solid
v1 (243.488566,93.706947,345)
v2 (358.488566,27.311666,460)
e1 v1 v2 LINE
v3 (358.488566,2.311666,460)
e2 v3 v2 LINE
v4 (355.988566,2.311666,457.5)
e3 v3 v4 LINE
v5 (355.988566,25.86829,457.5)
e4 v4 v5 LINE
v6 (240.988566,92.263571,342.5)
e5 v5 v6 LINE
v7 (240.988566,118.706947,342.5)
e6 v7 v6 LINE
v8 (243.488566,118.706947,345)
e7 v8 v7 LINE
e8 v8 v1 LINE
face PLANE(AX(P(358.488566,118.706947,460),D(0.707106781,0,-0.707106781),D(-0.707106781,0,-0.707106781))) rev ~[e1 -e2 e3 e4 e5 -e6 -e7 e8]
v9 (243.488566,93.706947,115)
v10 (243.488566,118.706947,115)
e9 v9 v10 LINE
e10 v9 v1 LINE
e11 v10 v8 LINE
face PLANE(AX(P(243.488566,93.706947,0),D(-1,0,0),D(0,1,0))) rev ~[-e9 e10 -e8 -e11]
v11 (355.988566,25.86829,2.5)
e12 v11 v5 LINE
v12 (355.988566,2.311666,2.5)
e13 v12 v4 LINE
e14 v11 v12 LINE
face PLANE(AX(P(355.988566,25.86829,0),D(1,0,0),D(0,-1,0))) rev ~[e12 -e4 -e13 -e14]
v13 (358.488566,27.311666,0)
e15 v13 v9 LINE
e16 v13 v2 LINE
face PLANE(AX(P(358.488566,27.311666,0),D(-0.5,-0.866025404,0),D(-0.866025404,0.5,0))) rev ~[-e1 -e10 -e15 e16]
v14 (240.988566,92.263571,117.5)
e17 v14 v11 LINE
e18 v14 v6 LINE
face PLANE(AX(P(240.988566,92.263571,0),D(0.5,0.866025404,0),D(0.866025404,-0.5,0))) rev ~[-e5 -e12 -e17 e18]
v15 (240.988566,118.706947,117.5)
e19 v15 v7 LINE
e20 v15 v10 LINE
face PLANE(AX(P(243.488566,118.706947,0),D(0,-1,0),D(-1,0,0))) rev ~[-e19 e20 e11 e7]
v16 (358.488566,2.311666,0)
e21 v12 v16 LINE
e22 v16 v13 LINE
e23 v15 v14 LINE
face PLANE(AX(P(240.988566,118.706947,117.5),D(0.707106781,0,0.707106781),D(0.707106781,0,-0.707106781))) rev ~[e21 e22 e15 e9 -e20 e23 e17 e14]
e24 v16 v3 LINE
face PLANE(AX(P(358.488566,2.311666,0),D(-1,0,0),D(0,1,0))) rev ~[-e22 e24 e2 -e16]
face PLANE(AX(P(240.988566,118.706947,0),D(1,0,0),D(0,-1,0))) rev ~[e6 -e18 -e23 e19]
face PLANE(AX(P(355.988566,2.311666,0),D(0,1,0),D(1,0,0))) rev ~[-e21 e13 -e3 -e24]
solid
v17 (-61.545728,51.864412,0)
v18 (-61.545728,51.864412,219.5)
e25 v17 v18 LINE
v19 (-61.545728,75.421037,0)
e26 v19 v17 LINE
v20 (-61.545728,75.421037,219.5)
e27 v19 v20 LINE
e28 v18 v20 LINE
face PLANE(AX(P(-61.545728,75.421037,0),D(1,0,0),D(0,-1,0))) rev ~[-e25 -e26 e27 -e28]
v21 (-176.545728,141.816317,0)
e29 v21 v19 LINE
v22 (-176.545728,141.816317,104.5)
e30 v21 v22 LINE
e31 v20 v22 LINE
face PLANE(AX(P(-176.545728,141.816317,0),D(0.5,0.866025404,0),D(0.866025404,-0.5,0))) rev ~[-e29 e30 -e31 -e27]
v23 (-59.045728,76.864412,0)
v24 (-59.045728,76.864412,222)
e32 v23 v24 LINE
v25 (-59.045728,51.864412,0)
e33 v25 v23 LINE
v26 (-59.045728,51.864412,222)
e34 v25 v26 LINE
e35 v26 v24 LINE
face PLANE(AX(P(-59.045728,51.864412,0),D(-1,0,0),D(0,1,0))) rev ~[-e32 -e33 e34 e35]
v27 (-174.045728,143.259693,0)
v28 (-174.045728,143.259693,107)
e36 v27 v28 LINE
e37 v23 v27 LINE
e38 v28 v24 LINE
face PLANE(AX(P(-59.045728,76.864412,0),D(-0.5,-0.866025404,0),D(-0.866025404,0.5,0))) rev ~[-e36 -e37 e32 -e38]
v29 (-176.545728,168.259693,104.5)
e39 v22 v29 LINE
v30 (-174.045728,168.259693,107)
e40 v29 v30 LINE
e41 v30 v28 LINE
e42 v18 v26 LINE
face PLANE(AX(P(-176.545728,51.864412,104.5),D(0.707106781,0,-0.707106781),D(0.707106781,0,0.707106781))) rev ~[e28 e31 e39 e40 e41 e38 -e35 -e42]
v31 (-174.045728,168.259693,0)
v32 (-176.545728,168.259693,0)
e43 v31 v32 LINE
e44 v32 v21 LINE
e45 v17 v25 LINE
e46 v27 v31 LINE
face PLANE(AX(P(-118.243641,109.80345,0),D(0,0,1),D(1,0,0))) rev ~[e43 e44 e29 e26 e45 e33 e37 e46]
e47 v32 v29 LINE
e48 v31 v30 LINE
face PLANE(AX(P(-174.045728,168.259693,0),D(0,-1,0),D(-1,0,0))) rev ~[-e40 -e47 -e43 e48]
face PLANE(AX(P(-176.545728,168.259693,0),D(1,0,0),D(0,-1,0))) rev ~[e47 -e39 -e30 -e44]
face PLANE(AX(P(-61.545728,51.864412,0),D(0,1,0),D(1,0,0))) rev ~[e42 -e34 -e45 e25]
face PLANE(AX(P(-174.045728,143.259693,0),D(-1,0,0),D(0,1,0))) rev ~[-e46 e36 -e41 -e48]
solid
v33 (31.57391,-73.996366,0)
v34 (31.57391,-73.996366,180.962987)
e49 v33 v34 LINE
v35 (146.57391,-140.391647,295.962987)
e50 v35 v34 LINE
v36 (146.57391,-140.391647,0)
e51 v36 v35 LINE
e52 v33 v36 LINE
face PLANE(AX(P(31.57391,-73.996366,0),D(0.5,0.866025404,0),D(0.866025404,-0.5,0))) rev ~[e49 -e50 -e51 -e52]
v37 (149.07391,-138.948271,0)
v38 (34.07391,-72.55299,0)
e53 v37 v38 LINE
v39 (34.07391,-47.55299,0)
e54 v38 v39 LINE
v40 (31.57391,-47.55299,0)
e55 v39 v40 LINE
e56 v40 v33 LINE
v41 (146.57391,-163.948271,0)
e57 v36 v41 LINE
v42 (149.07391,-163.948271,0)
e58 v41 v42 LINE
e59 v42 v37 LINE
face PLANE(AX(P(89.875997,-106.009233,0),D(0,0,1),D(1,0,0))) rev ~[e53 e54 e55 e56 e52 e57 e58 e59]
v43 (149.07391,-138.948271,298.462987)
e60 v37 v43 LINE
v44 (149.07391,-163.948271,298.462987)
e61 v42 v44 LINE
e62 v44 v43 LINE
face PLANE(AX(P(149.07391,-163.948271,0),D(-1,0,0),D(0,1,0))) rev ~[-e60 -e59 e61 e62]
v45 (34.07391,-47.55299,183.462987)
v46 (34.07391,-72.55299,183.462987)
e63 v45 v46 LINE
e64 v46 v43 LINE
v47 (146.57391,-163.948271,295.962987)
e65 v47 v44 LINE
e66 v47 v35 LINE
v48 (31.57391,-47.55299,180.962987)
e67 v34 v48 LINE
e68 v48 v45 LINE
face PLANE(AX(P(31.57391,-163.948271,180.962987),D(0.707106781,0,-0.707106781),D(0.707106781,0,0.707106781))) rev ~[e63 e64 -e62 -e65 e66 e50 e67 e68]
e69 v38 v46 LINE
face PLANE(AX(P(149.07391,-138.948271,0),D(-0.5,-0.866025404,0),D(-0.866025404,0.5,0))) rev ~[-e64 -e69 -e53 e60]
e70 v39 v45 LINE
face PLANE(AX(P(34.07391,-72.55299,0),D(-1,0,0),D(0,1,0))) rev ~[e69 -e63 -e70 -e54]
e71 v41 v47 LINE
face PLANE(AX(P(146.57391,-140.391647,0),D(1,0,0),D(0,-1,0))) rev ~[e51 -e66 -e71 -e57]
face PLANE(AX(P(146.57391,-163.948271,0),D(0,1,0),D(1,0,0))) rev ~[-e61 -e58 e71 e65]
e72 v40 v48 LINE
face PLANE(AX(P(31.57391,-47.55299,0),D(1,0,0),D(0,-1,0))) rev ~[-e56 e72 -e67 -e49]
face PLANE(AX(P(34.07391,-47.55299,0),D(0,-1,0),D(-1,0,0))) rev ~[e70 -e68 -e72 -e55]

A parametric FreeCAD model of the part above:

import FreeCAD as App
import Part
import Sketcher

V = App.Vector
Q = App.Units.Quantity


def add_polygon(sketch, points):
    """Adds a closed chain of lines whose ends are joined by coincident constraints."""
    first, n = sketch.GeometryCount, len(points)
    for a, b in zip(points, points[1:] + points[:1]):
        sketch.addGeometry(Part.LineSegment(App.Vector(*a, 0), App.Vector(*b, 0)), False)
    for i in range(n):
        sketch.addConstraint(Sketcher.Constraint("Coincident", first + i, 2, first + (i + 1) % n, 1))

doc = App.newDocument("Part")
body = doc.addObject("PartDesign::Body", "Body")

sketch1 = body.newObject("Sketcher::SketchObject", "Sketch")
sketch1.AttachmentSupport = (doc.getObject("XY_Plane"), [""])
sketch1.MapMode = "FlatFace"
add_polygon(sketch1, [(-174, 143.3), (-174, 168.3), (-176.5, 168.3), (-176.5, 141.8), (-61.5, 75.4), (-61.5, 51.9), (-59, 51.9), (-59, 76.9)])
sketch1.addConstraint(Sketcher.Constraint("Vertical", 0))
sketch1.addConstraint(Sketcher.Constraint("Horizontal", 1))
sketch1.addConstraint(Sketcher.Constraint("Vertical", 2))
sketch1.addConstraint(Sketcher.Constraint("Vertical", 4))
sketch1.addConstraint(Sketcher.Constraint("Horizontal", 5))
sketch1.addConstraint(Sketcher.Constraint("Vertical", 6))
sketch1.addConstraint(Sketcher.Constraint("Parallel", 3, 7))
sketch1.addConstraint(Sketcher.Constraint("Equal", 1, 5))
sketch1.addConstraint(Sketcher.Constraint("Equal", 0, 6))
sketch1.addConstraint(Sketcher.Constraint("DistanceY", 0, 1, 0, 2, 25.0))
sketch1.addConstraint(Sketcher.Constraint("Angle", 3, Q("-30 deg")))
sketch1.addConstraint(Sketcher.Constraint("DistanceX", 1, 2, 1, 1, 2.5))
sketch1.addConstraint(Sketcher.Constraint("DistanceX", 2, 2, 3, 2, 115.0))
sketch1.addConstraint(Sketcher.Constraint("DistanceY", 2, 2, 2, 1, 26.443376))
sketch1.addConstraint(Sketcher.Constraint("DistanceX", 0, 2, -1, 1, 174.045728))
sketch1.addConstraint(Sketcher.Constraint("DistanceY", -1, 1, 0, 2, 168.259693))
pad1 = body.newObject("PartDesign::Pad", "Pad")
pad1.Profile = sketch1
pad1.Length = 222

sketch2 = body.newObject("Sketcher::SketchObject", "Sketch001")
sketch2.AttachmentSupport = (doc.getObject("XZ_Plane"), [""])
sketch2.MapMode = "FlatFace"
sketch2.AttachmentOffset = App.Placement(V(0, 0, -51.864412), App.Rotation())
add_polygon(sketch2, [(-177, 222), (-177, 104), (-59, 222)])
sketch2.addConstraint(Sketcher.Constraint("Vertical", 0))
sketch2.addConstraint(Sketcher.Constraint("Horizontal", 2))
sketch2.addConstraint(Sketcher.Constraint("Equal", 2, 0))
sketch2.addConstraint(Sketcher.Constraint("DistanceX", 2, 2, 2, 1, 117.5))
sketch2.addConstraint(Sketcher.Constraint("DistanceY", -1, 1, 1, 2, 222.0))
sketch2.addConstraint(Sketcher.Constraint("DistanceX", 0, 2, -1, 1, 176.545728))
pocket1 = body.newObject("PartDesign::Pocket", "Pocket")
pocket1.Profile = sketch2
pocket1.Type = "ThroughAll"
body2 = doc.addObject("PartDesign::Body", "Body001")

sketch3 = body2.newObject("Sketcher::SketchObject", "Sketch002")
sketch3.AttachmentSupport = (doc.getObject("XY_Plane001"), [""])
sketch3.MapMode = "FlatFace"
add_polygon(sketch3, [(34.1, -72.6), (34.1, -47.6), (31.6, -47.6), (31.6, -74), (146.6, -140.4), (146.6, -163.9), (149.1, -163.9), (149.1, -138.9)])
sketch3.addConstraint(Sketcher.Constraint("Vertical", 0))
sketch3.addConstraint(Sketcher.Constraint("Horizontal", 1))
sketch3.addConstraint(Sketcher.Constraint("Vertical", 2))
sketch3.addConstraint(Sketcher.Constraint("Vertical", 4))
sketch3.addConstraint(Sketcher.Constraint("Horizontal", 5))
sketch3.addConstraint(Sketcher.Constraint("Vertical", 6))
sketch3.addConstraint(Sketcher.Constraint("Parallel", 3, 7))
sketch3.addConstraint(Sketcher.Constraint("Equal", 1, 5))
sketch3.addConstraint(Sketcher.Constraint("Equal", 0, 6))
sketch3.addConstraint(Sketcher.Constraint("DistanceY", 0, 1, 0, 2, 25.0))
sketch3.addConstraint(Sketcher.Constraint("Angle", 3, Q("-30 deg")))
sketch3.addConstraint(Sketcher.Constraint("DistanceX", 1, 2, 1, 1, 2.5))
sketch3.addConstraint(Sketcher.Constraint("DistanceX", 2, 2, 3, 2, 115.0))
sketch3.addConstraint(Sketcher.Constraint("DistanceY", 2, 2, 2, 1, 26.443376))
sketch3.addConstraint(Sketcher.Constraint("DistanceX", -1, 1, 0, 2, 34.07391))
sketch3.addConstraint(Sketcher.Constraint("DistanceY", 0, 2, -1, 1, 47.55299))
pad2 = body2.newObject("PartDesign::Pad", "Pad001")
pad2.Profile = sketch3
pad2.Length = 298.462987

sketch4 = body2.newObject("Sketcher::SketchObject", "Sketch003")
sketch4.AttachmentSupport = (doc.getObject("XZ_Plane001"), [""])
sketch4.MapMode = "FlatFace"
sketch4.AttachmentOffset = App.Placement(V(0, 0, 163.948271), App.Rotation())
add_polygon(sketch4, [(149, 298), (32, 298), (32, 181)])
sketch4.addConstraint(Sketcher.Constraint("Horizontal", 0))
sketch4.addConstraint(Sketcher.Constraint("Vertical", 1))
sketch4.addConstraint(Sketcher.Constraint("Equal", 0, 1))
sketch4.addConstraint(Sketcher.Constraint("DistanceX", 0, 2, 0, 1, 117.5))
sketch4.addConstraint(Sketcher.Constraint("DistanceX", -1, 1, 0, 2, 31.57391))
sketch4.addConstraint(Sketcher.Constraint("DistanceY", -1, 1, 0, 2, 298.462987))
pocket2 = body2.newObject("PartDesign::Pocket", "Pocket001")
pocket2.Profile = sketch4
pocket2.Type = "ThroughAll"
body3 = doc.addObject("PartDesign::Body", "Body002")

sketch5 = body3.newObject("Sketcher::SketchObject", "Sketch004")
sketch5.AttachmentSupport = (doc.getObject("XY_Plane002"), [""])
sketch5.MapMode = "FlatFace"
add_polygon(sketch5, [(243.5, 93.7), (243.5, 118.7), (241, 118.7), (241, 92.3), (356, 25.9), (356, 2.3), (358.5, 2.3), (358.5, 27.3)])
sketch5.addConstraint(Sketcher.Constraint("Vertical", 0))
sketch5.addConstraint(Sketcher.Constraint("Horizontal", 1))
sketch5.addConstraint(Sketcher.Constraint("Vertical", 2))
sketch5.addConstraint(Sketcher.Constraint("Vertical", 4))
sketch5.addConstraint(Sketcher.Constraint("Horizontal", 5))
sketch5.addConstraint(Sketcher.Constraint("Vertical", 6))
sketch5.addConstraint(Sketcher.Constraint("Parallel", 3, 7))
sketch5.addConstraint(Sketcher.Constraint("Equal", 1, 5))
sketch5.addConstraint(Sketcher.Constraint("Equal", 0, 6))
sketch5.addConstraint(Sketcher.Constraint("DistanceY", 0, 1, 0, 2, 25.0))
sketch5.addConstraint(Sketcher.Constraint("Angle", 3, Q("-30 deg")))
sketch5.addConstraint(Sketcher.Constraint("DistanceX", 1, 2, 1, 1, 2.5))
sketch5.addConstraint(Sketcher.Constraint("DistanceX", 2, 2, 3, 2, 115.0))
sketch5.addConstraint(Sketcher.Constraint("DistanceY", 2, 2, 2, 1, 26.443376))
sketch5.addConstraint(Sketcher.Constraint("DistanceY", -1, 1, 2, 2, 92.263571))
sketch5.addConstraint(Sketcher.Constraint("DistanceX", -1, 1, 0, 2, 243.488566))
pad3 = body3.newObject("PartDesign::Pad", "Pad002")
pad3.Profile = sketch5
pad3.Length = 460

sketch6 = body3.newObject("Sketcher::SketchObject", "Sketch005")
sketch6.AttachmentSupport = (doc.getObject("XZ_Plane002"), [""])
sketch6.MapMode = "FlatFace"
sketch6.AttachmentOffset = App.Placement(V(0, 0, -118.706947), App.Rotation())
add_polygon(sketch6, [(358, 460), (241, 342), (241, 460)])
sketch6.addConstraint(Sketcher.Constraint("Vertical", 1))
sketch6.addConstraint(Sketcher.Constraint("Horizontal", 2))
sketch6.addConstraint(Sketcher.Constraint("Equal", 2, 1))
sketch6.addConstraint(Sketcher.Constraint("DistanceX", 2, 1, 2, 2, 117.5))
sketch6.addConstraint(Sketcher.Constraint("DistanceY", -1, 1, 1, 2, 460.0))
sketch6.addConstraint(Sketcher.Constraint("DistanceX", -1, 1, 0, 2, 240.988566))
pocket3 = body3.newObject("PartDesign::Pocket", "Pocket002")
pocket3.Profile = sketch6
pocket3.Type = "ThroughAll"
pocket3.Reversed = True

sketch7 = body3.newObject("Sketcher::SketchObject", "Sketch006")
sketch7.AttachmentSupport = (doc.getObject("XZ_Plane002"), [""])
sketch7.MapMode = "FlatFace"
sketch7.AttachmentOffset = App.Placement(V(0, 0, -118.706947), App.Rotation())
add_polygon(sketch7, [(358, 0), (241, 0), (241, 118)])
sketch7.addConstraint(Sketcher.Constraint("Horizontal", 0))
sketch7.addConstraint(Sketcher.Constraint("Vertical", 1))
sketch7.addConstraint(Sketcher.Constraint("PointOnObject", 0, 2, -1))
sketch7.addConstraint(Sketcher.Constraint("Equal", 0, 1))
sketch7.addConstraint(Sketcher.Constraint("DistanceX", 0, 2, 0, 1, 117.5))
sketch7.addConstraint(Sketcher.Constraint("DistanceX", -1, 1, 0, 2, 240.988566))
pocket4 = body3.newObject("PartDesign::Pocket", "Pocket003")
pocket4.Profile = sketch7
pocket4.Type = "ThroughAll"
pocket4.Reversed = True

doc.recompute()
